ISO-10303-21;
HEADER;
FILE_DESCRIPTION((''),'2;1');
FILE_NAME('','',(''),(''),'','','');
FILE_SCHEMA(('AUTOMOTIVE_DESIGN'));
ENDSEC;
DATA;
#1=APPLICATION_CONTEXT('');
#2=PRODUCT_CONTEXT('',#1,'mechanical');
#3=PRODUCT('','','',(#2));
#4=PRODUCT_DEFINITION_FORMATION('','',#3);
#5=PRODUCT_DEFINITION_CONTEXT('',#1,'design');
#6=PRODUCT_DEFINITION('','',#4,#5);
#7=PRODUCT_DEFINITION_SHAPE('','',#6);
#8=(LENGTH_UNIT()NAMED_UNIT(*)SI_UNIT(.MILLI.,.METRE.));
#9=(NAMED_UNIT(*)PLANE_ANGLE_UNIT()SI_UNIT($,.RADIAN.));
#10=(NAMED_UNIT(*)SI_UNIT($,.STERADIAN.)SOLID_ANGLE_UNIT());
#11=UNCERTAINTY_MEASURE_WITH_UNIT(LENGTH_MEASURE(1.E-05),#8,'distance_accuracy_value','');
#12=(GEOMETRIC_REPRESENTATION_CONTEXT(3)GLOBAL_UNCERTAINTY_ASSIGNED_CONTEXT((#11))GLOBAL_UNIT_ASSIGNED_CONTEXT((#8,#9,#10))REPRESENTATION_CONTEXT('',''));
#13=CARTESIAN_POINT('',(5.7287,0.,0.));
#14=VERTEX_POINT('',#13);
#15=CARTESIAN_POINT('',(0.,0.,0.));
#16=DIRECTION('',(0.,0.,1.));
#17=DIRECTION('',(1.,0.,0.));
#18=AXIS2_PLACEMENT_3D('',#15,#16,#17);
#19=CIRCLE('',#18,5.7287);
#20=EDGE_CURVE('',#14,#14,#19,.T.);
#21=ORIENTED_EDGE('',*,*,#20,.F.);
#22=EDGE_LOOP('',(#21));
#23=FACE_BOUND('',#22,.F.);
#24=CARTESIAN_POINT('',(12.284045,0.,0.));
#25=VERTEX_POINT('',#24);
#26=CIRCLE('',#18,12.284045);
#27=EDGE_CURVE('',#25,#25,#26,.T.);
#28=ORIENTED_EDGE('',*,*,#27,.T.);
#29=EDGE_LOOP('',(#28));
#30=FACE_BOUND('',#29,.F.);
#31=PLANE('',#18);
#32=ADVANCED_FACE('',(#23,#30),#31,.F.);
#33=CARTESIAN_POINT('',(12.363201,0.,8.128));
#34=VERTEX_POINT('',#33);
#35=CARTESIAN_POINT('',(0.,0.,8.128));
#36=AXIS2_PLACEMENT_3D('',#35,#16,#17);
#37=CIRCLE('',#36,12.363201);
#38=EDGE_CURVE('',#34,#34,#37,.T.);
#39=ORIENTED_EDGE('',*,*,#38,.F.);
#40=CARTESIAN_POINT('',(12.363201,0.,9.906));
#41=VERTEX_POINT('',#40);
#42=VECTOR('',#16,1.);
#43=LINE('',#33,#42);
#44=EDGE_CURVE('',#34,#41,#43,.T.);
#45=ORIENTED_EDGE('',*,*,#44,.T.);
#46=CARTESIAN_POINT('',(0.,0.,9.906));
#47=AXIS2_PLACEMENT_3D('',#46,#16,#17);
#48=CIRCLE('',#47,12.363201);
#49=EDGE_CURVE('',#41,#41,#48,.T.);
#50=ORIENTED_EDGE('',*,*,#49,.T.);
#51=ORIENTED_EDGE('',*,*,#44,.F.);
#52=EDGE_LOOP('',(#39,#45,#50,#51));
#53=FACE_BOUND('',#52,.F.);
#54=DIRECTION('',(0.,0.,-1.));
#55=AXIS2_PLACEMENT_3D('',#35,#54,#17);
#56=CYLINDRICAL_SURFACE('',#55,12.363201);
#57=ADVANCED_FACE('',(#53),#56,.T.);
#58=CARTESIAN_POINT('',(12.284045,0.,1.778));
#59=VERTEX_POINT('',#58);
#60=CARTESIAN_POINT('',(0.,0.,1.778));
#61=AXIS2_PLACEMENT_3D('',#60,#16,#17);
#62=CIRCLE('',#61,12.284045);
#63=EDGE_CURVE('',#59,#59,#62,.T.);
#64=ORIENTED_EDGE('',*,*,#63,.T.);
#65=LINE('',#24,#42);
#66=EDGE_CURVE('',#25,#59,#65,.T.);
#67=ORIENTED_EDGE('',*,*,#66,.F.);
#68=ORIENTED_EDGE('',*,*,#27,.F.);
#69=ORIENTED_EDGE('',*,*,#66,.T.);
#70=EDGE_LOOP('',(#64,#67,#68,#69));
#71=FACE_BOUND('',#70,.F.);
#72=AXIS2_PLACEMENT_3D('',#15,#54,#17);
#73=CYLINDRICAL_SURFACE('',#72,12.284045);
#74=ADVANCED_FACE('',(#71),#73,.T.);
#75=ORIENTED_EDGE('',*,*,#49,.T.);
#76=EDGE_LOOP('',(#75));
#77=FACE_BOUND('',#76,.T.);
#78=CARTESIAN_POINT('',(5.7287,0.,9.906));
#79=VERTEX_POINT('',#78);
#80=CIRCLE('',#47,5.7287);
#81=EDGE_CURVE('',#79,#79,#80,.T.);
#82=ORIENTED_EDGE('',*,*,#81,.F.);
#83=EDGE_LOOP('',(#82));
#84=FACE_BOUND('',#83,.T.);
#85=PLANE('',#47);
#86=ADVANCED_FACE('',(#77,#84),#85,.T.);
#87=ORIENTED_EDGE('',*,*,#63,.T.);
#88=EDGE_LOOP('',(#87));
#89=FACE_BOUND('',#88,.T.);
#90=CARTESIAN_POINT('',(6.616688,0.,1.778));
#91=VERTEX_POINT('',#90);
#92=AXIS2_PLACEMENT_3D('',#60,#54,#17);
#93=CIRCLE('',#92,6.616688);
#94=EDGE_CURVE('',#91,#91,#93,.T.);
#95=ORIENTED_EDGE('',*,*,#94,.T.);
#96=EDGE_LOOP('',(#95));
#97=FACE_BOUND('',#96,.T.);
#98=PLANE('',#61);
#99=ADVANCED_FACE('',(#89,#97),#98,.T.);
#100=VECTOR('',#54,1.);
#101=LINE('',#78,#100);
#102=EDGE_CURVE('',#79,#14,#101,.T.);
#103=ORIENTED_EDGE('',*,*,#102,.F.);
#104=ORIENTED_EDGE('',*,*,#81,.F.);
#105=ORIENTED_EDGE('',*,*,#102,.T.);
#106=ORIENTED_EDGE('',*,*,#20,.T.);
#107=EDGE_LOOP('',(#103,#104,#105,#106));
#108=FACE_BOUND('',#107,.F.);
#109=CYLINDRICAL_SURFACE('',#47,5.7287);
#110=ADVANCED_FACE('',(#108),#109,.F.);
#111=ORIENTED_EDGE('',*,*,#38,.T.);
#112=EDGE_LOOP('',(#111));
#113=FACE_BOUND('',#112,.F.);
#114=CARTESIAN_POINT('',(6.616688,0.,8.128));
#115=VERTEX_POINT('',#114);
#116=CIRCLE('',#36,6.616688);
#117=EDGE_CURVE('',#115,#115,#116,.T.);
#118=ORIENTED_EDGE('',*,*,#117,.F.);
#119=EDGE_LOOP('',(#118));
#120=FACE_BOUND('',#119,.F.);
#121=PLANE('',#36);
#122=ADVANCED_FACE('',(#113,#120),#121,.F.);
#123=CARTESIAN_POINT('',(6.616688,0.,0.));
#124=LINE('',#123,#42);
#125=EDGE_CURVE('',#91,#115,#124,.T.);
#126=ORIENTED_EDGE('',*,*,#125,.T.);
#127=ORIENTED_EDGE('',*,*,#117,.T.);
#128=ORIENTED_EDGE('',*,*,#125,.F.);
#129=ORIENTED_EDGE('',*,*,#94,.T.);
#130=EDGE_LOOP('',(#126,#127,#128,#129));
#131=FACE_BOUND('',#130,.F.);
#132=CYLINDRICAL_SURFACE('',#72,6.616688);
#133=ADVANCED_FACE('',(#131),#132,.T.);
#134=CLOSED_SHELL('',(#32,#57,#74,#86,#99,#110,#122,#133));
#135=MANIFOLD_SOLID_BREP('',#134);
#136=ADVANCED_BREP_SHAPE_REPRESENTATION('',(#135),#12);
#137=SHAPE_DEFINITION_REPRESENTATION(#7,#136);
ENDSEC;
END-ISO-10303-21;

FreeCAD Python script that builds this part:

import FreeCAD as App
import Part
import Sketcher
Q = App.Units.Quantity

doc = App.newDocument("Part")
body = doc.addObject("PartDesign::Body", "Body")

# Sketch on XY plane
sketch1 = body.newObject("Sketcher::SketchObject", "Sketch")
sketch1.AttachmentSupport = (doc.getObject("XY_Plane"), [""])
sketch1.MapMode = "FlatFace"
sketch1.addGeometry(Part.Circle(App.Vector(0, 0, 0), App.Vector(0, 0, 1), 12.284045), False)
sketch1.addConstraint(Sketcher.Constraint("Coincident", 0, 3, -1, 1))
sketch1.addConstraint(Sketcher.Constraint("Diameter", 0, Q("24.56809 mm")))
pad1 = body.newObject("PartDesign::Pad", "Pad")
pad1.Profile = sketch1
pad1.Length = Q("0.07 in")

# Sketch on XY plane
sketch2 = body.newObject("Sketcher::SketchObject", "Sketch001")
sketch2.AttachmentSupport = (doc.getObject("XY_Plane"), [""])
sketch2.MapMode = "FlatFace"
sketch2.addGeometry(Part.Circle(App.Vector(0, 0, 0), App.Vector(0, 0, 1), 6.616688), False)
sketch2.addConstraint(Sketcher.Constraint("Coincident", 0, 3, -1, 1))
sketch2.addConstraint(Sketcher.Constraint("Diameter", 0, Q("13.233376 mm")))
pad2 = body.newObject("PartDesign::Pad", "Pad001")
pad2.Profile = sketch2
pad2.Length = Q("0.32 in")

# Sketch on XY plane
sketch3 = body.newObject("Sketcher::SketchObject", "Sketch002")
sketch3.AttachmentSupport = (doc.getObject("XY_Plane"), [""])
sketch3.MapMode = "FlatFace"
sketch3.AttachmentOffset = App.Placement(App.Vector(0, 0, 0.32 * 25.4), App.Rotation())
sketch3.addGeometry(Part.Circle(App.Vector(0, 0, 0), App.Vector(0, 0, 1), 12.363201), False)
sketch3.addConstraint(Sketcher.Constraint("Coincident", 0, 3, -1, 1))
sketch3.addConstraint(Sketcher.Constraint("Diameter", 0, Q("24.726402 mm")))
pad3 = body.newObject("PartDesign::Pad", "Pad002")
pad3.Profile = sketch3
pad3.Length = Q("0.07 in")

# Sketch on XY plane
sketch4 = body.newObject("Sketcher::SketchObject", "Sketch003")
sketch4.AttachmentSupport = (doc.getObject("XY_Plane"), [""])
sketch4.MapMode = "FlatFace"
sketch4.AttachmentOffset = App.Placement(App.Vector(0, 0, 0.39 * 25.4), App.Rotation())
sketch4.addGeometry(Part.Circle(App.Vector(0, 0, 0), App.Vector(0, 0, 1), 5.7287), False)
sketch4.addConstraint(Sketcher.Constraint("Coincident", 0, 3, -1, 1))
sketch4.addConstraint(Sketcher.Constraint("Diameter", 0, Q("11.4574 mm")))
pocket1 = body.newObject("PartDesign::Pocket", "Pocket")
pocket1.Profile = sketch4
pocket1.Type = "ThroughAll"

doc.recompute()
